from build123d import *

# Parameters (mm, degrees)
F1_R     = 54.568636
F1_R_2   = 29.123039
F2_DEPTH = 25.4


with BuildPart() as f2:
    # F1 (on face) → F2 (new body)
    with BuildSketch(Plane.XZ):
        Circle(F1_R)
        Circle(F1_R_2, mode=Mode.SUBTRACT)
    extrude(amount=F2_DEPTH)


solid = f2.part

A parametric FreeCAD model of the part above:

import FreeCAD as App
import Part
import Sketcher

V = App.Vector
Q = App.Units.Quantity

doc = App.newDocument("Part")
body = doc.addObject("PartDesign::Body", "Body")

# Sketch on XZ plane
sketch1 = body.newObject("Sketcher::SketchObject", "Sketch")
sketch1.AttachmentSupport = (doc.getObject("XZ_Plane"), [""])
sketch1.MapMode = "FlatFace"
sketch1.addGeometry([
    Part.Circle(V(0, 0, 0), V(0, 0, 1), 55),
    Part.Circle(V(0, 0, 0), V(0, 0, 1), 29),
], False)
sketch1.addConstraint([
    Sketcher.Constraint("Coincident", 0, 3, -1, 1),
    Sketcher.Constraint("Coincident", 1, 3, -1, 1),
    Sketcher.Constraint("Diameter", 0, 109.137272),
    Sketcher.Constraint("Diameter", 1, 58.246078),
])
pad1 = body.newObject("PartDesign::Pad", "Pad")
pad1.Profile = sketch1
pad1.Length = Q("1 in")

doc.recompute()
